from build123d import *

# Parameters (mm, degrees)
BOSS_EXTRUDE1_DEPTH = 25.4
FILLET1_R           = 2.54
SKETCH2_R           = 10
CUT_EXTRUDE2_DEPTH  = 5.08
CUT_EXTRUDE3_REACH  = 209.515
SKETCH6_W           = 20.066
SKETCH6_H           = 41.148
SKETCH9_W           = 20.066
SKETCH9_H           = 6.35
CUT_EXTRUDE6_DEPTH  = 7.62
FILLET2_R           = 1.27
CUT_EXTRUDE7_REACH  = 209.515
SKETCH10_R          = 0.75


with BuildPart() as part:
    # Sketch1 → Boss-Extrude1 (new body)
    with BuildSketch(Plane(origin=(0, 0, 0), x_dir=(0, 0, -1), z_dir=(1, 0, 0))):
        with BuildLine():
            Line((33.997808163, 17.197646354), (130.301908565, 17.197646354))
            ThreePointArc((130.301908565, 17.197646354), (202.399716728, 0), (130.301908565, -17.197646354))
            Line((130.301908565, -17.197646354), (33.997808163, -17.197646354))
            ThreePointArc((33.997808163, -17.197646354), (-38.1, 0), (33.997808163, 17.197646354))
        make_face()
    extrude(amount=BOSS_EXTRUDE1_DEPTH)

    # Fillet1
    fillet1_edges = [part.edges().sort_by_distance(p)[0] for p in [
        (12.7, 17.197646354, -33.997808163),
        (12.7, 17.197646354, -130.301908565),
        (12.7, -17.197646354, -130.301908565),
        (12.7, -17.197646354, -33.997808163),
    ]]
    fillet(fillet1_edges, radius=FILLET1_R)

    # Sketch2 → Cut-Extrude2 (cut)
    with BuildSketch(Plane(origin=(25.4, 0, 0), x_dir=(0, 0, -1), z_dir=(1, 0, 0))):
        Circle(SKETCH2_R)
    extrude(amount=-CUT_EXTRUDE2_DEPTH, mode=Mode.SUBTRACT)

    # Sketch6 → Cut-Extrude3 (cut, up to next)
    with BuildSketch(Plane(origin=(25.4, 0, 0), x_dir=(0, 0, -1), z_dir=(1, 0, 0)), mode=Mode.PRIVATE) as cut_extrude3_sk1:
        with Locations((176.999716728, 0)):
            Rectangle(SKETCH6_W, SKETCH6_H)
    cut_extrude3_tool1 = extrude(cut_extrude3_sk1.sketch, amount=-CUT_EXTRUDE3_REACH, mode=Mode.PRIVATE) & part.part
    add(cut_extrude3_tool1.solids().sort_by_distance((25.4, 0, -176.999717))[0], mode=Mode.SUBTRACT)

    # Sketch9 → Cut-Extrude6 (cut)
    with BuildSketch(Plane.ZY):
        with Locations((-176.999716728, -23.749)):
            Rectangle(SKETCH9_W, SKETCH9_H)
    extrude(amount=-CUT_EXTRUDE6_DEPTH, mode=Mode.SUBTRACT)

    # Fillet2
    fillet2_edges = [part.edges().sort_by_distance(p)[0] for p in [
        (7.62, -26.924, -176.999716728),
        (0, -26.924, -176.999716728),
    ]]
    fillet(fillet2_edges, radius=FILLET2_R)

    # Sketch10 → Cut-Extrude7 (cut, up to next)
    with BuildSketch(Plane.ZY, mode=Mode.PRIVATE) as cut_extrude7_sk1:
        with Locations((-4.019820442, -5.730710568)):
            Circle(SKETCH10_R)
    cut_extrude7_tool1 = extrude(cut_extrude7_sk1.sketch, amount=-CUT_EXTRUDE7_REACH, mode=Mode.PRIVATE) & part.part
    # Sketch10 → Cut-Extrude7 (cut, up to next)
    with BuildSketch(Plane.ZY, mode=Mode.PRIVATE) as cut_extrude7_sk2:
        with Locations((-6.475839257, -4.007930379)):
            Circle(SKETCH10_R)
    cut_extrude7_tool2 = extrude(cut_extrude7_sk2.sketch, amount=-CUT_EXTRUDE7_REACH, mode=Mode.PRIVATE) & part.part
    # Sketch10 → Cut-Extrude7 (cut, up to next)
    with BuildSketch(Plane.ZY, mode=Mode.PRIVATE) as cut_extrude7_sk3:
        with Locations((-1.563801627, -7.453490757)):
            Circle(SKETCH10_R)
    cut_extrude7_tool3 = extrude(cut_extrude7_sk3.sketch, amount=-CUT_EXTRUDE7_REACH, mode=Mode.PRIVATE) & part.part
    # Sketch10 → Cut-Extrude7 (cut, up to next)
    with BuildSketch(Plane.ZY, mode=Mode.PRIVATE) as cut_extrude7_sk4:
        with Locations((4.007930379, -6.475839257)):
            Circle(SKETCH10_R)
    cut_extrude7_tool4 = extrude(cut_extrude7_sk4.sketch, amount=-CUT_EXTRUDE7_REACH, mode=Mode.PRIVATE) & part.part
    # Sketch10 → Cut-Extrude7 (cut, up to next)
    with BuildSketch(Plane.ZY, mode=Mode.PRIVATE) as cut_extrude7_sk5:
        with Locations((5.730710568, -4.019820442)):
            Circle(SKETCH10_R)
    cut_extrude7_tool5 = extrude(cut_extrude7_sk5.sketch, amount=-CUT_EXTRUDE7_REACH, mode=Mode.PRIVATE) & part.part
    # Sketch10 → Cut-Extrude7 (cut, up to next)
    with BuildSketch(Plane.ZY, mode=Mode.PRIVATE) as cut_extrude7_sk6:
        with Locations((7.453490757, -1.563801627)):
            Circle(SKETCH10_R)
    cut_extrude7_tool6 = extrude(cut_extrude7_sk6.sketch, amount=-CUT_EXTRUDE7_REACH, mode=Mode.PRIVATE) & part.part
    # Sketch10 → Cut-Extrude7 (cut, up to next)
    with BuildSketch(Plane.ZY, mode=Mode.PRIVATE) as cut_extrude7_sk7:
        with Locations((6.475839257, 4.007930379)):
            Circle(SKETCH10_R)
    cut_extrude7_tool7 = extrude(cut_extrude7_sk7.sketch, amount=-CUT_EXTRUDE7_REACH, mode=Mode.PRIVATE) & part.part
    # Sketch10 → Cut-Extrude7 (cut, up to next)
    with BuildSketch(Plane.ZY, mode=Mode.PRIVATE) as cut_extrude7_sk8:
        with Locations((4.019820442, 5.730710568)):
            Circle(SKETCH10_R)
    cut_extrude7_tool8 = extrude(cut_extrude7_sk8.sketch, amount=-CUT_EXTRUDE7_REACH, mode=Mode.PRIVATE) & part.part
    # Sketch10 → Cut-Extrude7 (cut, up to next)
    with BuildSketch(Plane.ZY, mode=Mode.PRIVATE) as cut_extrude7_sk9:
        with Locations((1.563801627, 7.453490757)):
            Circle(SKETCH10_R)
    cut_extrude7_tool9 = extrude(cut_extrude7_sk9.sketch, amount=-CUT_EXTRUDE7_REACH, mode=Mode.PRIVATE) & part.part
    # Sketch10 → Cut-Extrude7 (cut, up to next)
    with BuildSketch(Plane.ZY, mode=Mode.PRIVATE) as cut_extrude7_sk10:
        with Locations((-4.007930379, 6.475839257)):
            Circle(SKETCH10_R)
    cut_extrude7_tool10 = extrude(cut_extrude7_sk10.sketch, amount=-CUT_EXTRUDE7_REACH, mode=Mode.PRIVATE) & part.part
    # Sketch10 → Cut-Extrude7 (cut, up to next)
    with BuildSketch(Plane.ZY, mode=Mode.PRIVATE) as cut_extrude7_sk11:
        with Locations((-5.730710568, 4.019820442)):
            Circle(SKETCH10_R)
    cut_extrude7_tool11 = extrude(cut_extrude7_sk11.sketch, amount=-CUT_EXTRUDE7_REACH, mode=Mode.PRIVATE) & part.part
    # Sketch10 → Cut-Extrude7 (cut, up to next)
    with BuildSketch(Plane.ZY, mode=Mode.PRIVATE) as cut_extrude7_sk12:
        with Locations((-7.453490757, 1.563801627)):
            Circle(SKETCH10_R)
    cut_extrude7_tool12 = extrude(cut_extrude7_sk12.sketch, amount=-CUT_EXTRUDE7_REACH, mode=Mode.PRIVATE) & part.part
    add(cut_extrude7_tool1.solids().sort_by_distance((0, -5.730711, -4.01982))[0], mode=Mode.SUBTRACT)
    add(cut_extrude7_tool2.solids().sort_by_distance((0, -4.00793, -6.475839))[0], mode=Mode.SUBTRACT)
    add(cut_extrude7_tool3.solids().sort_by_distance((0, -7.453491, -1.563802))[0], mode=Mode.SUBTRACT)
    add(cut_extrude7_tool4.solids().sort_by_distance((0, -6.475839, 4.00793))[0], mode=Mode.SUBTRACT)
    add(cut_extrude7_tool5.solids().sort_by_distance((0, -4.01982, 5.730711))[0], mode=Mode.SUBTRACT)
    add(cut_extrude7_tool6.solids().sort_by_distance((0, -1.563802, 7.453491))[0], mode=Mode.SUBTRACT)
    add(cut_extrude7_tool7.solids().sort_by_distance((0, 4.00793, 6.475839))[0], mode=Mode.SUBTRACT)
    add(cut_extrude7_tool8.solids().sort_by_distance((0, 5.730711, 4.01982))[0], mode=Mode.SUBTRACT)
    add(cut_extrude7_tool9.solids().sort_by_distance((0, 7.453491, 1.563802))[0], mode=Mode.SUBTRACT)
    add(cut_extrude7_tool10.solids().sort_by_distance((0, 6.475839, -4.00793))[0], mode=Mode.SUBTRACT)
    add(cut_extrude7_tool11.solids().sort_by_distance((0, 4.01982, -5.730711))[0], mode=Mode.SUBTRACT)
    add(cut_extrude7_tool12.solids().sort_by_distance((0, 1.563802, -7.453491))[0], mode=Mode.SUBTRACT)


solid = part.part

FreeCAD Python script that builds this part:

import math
import FreeCAD as App
import Part
import Sketcher

V = App.Vector
Q = App.Units.Quantity


def edges_at(feature, points):
    """Names of the edges that pass closest to the given points."""
    edges = feature.Shape.Edges
    near = lambda p: min(range(len(edges)), key=lambda i: edges[i].distToShape(Part.Vertex(*p))[0])
    return sorted({f"Edge{near(p) + 1}" for p in points})


def add_polygon(sketch, points):
    """Adds a closed chain of lines whose ends are joined by coincident constraints."""
    first, n = sketch.GeometryCount, len(points)
    for a, b in zip(points, points[1:] + points[:1]):
        sketch.addGeometry(Part.LineSegment(App.Vector(*a, 0), App.Vector(*b, 0)), False)
    for i in range(n):
        sketch.addConstraint(Sketcher.Constraint("Coincident", first + i, 2, first + (i + 1) % n, 1))

doc = App.newDocument("Part")
body = doc.addObject("PartDesign::Body", "Body")

# Sketch on YZ plane
sketch1 = body.newObject("Sketcher::SketchObject", "Sketch")
sketch1.AttachmentSupport = (doc.getObject("YZ_Plane"), [""])
sketch1.MapMode = "FlatFace"
sketch1.addGeometry([
    Part.LineSegment(V(17, -130, 0), V(17, -34, 0)),
    Part.ArcOfCircle(Part.Circle(V(0, 0, 0), V(0, 0, 1), 38), math.radians(-63), math.radians(243)),
    Part.LineSegment(V(-17, -34, 0), V(-17, -130, 0)),
    Part.ArcOfCircle(Part.Circle(V(0, -164, 0), V(0, 0, 1), 38), math.radians(117), math.radians(423)),
], False)
sketch1.addConstraint([
    Sketcher.Constraint("Coincident", 0, 2, 1, 1),
    Sketcher.Constraint("Coincident", 1, 2, 2, 1),
    Sketcher.Constraint("Coincident", 2, 2, 3, 1),
    Sketcher.Constraint("Coincident", 3, 2, 0, 1),
    Sketcher.Constraint("Vertical", 0),
    Sketcher.Constraint("Vertical", 2),
    Sketcher.Constraint("Coincident", 1, 3, -1, 1),
    Sketcher.Constraint("Equal", 1, 3),
    Sketcher.Constraint("Symmetric", 2, 2, 3, 2, -2),
    Sketcher.Constraint("Radius", 1, Q("1.5 in")),
    Sketcher.Constraint("DistanceY", 0, 1, 0, 2, Q("3.7915 in")),
    Sketcher.Constraint("DistanceY", 0, 2, -1, 1, 33.997808),
])
pad1 = body.newObject("PartDesign::Pad", "Pad")
pad1.Profile = sketch1
pad1.Length = Q("1 in")
doc.recompute()

fillet = body.newObject("PartDesign::Fillet", "Fillet")
fillet.Base = (pad1, edges_at(pad1, [
    (12.7, 17.198, -33.998),
    (12.7, 17.198, -130.302),
    (12.7, -17.198, -130.302),
    (12.7, -17.198, -33.998),
]))
fillet.Radius = Q("0.1 in")

# Sketch on YZ plane
sketch2 = body.newObject("Sketcher::SketchObject", "Sketch001")
sketch2.AttachmentSupport = (doc.getObject("YZ_Plane"), [""])
sketch2.MapMode = "FlatFace"
sketch2.AttachmentOffset = App.Placement(V(0, 0, 1 * 25.4), App.Rotation())
sketch2.addGeometry(Part.Circle(V(0, 0, 0), V(0, 0, 1), 10), False)
sketch2.addConstraint([
    Sketcher.Constraint("Coincident", 0, 3, -1, 1),
    Sketcher.Constraint("Diameter", 0, 20.0),
])
pocket1 = body.newObject("PartDesign::Pocket", "Pocket")
pocket1.Profile = sketch2
pocket1.Length = Q("0.2 in")

# Sketch on YZ plane
sketch3 = body.newObject("Sketcher::SketchObject", "Sketch002")
sketch3.AttachmentSupport = (doc.getObject("YZ_Plane"), [""])
sketch3.MapMode = "FlatFace"
sketch3.AttachmentOffset = App.Placement(V(0, 0, 1 * 25.4), App.Rotation())
add_polygon(sketch3, [(21, -167), (-21, -167), (-21, -187), (21, -187)])  # lines 0-3
sketch3.addConstraint([
    Sketcher.Constraint("Horizontal", 0),
    Sketcher.Constraint("Vertical", 1),
    Sketcher.Constraint("Horizontal", 2),
    Sketcher.Constraint("Vertical", 3),
    Sketcher.Constraint("DistanceX", 0, 2, 0, 1, Q("1.62 in")),
    Sketcher.Constraint("DistanceY", 1, 2, 1, 1, Q("0.79 in")),
    Sketcher.Constraint("DistanceX", 0, 2, -1, 1, Q("0.81 in")),
    Sketcher.Constraint("DistanceY", 0, 2, -1, 1, 166.966717),
])
pocket2 = body.newObject("PartDesign::Pocket", "Pocket001")
pocket2.Profile = sketch3
pocket2.Type = "UpToFirst"

# Sketch on YZ plane
sketch4 = body.newObject("Sketcher::SketchObject", "Sketch003")
sketch4.AttachmentSupport = (doc.getObject("YZ_Plane"), [""])
sketch4.MapMode = "FlatFace"
add_polygon(sketch4, [(-21, -187), (-27, -187), (-27, -167), (-21, -167)])  # lines 0-3
sketch4.addConstraint([
    Sketcher.Constraint("Horizontal", 0),
    Sketcher.Constraint("Vertical", 1),
    Sketcher.Constraint("Horizontal", 2),
    Sketcher.Constraint("Vertical", 3),
    Sketcher.Constraint("DistanceX", 0, 2, 0, 1, Q("0.25 in")),
    Sketcher.Constraint("DistanceY", 1, 1, 1, 2, Q("0.79 in")),
    Sketcher.Constraint("DistanceX", 0, 2, -1, 1, Q("1.06 in")),
    Sketcher.Constraint("DistanceY", 0, 2, -1, 1, 187.032717),
])
pocket3 = body.newObject("PartDesign::Pocket", "Pocket002")
pocket3.Profile = sketch4
pocket3.Length = Q("0.3 in")
pocket3.Reversed = True
doc.recompute()

fillet2 = body.newObject("PartDesign::Fillet", "Fillet001")
fillet2.Base = (pocket3, edges_at(pocket3, [(7.62, -26.924, -177), (0, -26.924, -177)]))
fillet2.Radius = Q("0.05 in")

# Sketch on YZ plane
sketch5 = body.newObject("Sketcher::SketchObject", "Sketch004")
sketch5.AttachmentSupport = (doc.getObject("YZ_Plane"), [""])
sketch5.MapMode = "FlatFace"
sketch5.addGeometry(Part.Circle(V(-5.7, -4, 0), V(0, 0, 1), 0.8), False)
sketch5.addConstraint([
    Sketcher.Constraint("Diameter", 0, 1.5),
    Sketcher.Constraint("DistanceX", 0, 3, -1, 1, 5.730711),
    Sketcher.Constraint("DistanceY", 0, 3, -1, 1, 4.01982),
])
pocket4 = body.newObject("PartDesign::Pocket", "Pocket003")
pocket4.Profile = sketch5
pocket4.Type = "UpToFirst"
pocket4.Reversed = True

# Sketch on YZ plane
sketch6 = body.newObject("Sketcher::SketchObject", "Sketch005")
sketch6.AttachmentSupport = (doc.getObject("YZ_Plane"), [""])
sketch6.MapMode = "FlatFace"
sketch6.addGeometry(Part.Circle(V(-4, -6.5, 0), V(0, 0, 1), 0.8), False)
sketch6.addConstraint([
    Sketcher.Constraint("Diameter", 0, 1.5),
    Sketcher.Constraint("DistanceX", 0, 3, -1, 1, 4.00793),
    Sketcher.Constraint("DistanceY", 0, 3, -1, 1, 6.475839),
])
pocket5 = body.newObject("PartDesign::Pocket", "Pocket004")
pocket5.Profile = sketch6
pocket5.Type = "UpToFirst"
pocket5.Reversed = True

# Sketch on YZ plane
sketch7 = body.newObject("Sketcher::SketchObject", "Sketch006")
sketch7.AttachmentSupport = (doc.getObject("YZ_Plane"), [""])
sketch7.MapMode = "FlatFace"
sketch7.addGeometry(Part.Circle(V(-7.5, -1.6, 0), V(0, 0, 1), 0.8), False)
sketch7.addConstraint([
    Sketcher.Constraint("Diameter", 0, 1.5),
    Sketcher.Constraint("DistanceY", 0, 3, -1, 1, 1.563802),
    Sketcher.Constraint("DistanceX", 0, 3, -1, 1, 7.453491),
])
pocket6 = body.newObject("PartDesign::Pocket", "Pocket005")
pocket6.Profile = sketch7
pocket6.Type = "UpToFirst"
pocket6.Reversed = True

# Sketch on YZ plane
sketch8 = body.newObject("Sketcher::SketchObject", "Sketch007")
sketch8.AttachmentSupport = (doc.getObject("YZ_Plane"), [""])
sketch8.MapMode = "FlatFace"
sketch8.addGeometry(Part.Circle(V(-6.5, 4, 0), V(0, 0, 1), 0.8), False)
sketch8.addConstraint([
    Sketcher.Constraint("Diameter", 0, 1.5),
    Sketcher.Constraint("DistanceX", 0, 3, -1, 1, 6.475839),
    Sketcher.Constraint("DistanceY", -1, 1, 0, 3, 4.00793),
])
pocket7 = body.newObject("PartDesign::Pocket", "Pocket006")
pocket7.Profile = sketch8
pocket7.Type = "UpToFirst"
pocket7.Reversed = True

# Sketch on YZ plane
sketch9 = body.newObject("Sketcher::SketchObject", "Sketch008")
sketch9.AttachmentSupport = (doc.getObject("YZ_Plane"), [""])
sketch9.MapMode = "FlatFace"
sketch9.addGeometry(Part.Circle(V(-4, 5.7, 0), V(0, 0, 1), 0.8), False)
sketch9.addConstraint([
    Sketcher.Constraint("Diameter", 0, 1.5),
    Sketcher.Constraint("DistanceX", 0, 3, -1, 1, 4.01982),
    Sketcher.Constraint("DistanceY", -1, 1, 0, 3, 5.730711),
])
pocket8 = body.newObject("PartDesign::Pocket", "Pocket007")
pocket8.Profile = sketch9
pocket8.Type = "UpToFirst"
pocket8.Reversed = True

# Sketch on YZ plane
sketch10 = body.newObject("Sketcher::SketchObject", "Sketch009")
sketch10.AttachmentSupport = (doc.getObject("YZ_Plane"), [""])
sketch10.MapMode = "FlatFace"
sketch10.addGeometry(Part.Circle(V(-1.6, 7.5, 0), V(0, 0, 1), 0.8), False)
sketch10.addConstraint([
    Sketcher.Constraint("Diameter", 0, 1.5),
    Sketcher.Constraint("DistanceX", 0, 3, -1, 1, 1.563802),
    Sketcher.Constraint("DistanceY", -1, 1, 0, 3, 7.453491),
])
pocket9 = body.newObject("PartDesign::Pocket", "Pocket008")
pocket9.Profile = sketch10
pocket9.Type = "UpToFirst"
pocket9.Reversed = True

# Sketch on YZ plane
sketch11 = body.newObject("Sketcher::SketchObject", "Sketch010")
sketch11.AttachmentSupport = (doc.getObject("YZ_Plane"), [""])
sketch11.MapMode = "FlatFace"
sketch11.addGeometry(Part.Circle(V(4, 6.5, 0), V(0, 0, 1), 0.8), False)
sketch11.addConstraint([
    Sketcher.Constraint("Diameter", 0, 1.5),
    Sketcher.Constraint("DistanceX", -1, 1, 0, 3, 4.00793),
    Sketcher.Constraint("DistanceY", -1, 1, 0, 3, 6.475839),
])
pocket10 = body.newObject("PartDesign::Pocket", "Pocket009")
pocket10.Profile = sketch11
pocket10.Type = "UpToFirst"
pocket10.Reversed = True

# Sketch on YZ plane
sketch12 = body.newObject("Sketcher::SketchObject", "Sketch011")
sketch12.AttachmentSupport = (doc.getObject("YZ_Plane"), [""])
sketch12.MapMode = "FlatFace"
sketch12.addGeometry(Part.Circle(V(5.7, 4, 0), V(0, 0, 1), 0.8), False)
sketch12.addConstraint([
    Sketcher.Constraint("Diameter", 0, 1.5),
    Sketcher.Constraint("DistanceX", -1, 1, 0, 3, 5.730711),
    Sketcher.Constraint("DistanceY", -1, 1, 0, 3, 4.01982),
])
pocket11 = body.newObject("PartDesign::Pocket", "Pocket010")
pocket11.Profile = sketch12
pocket11.Type = "UpToFirst"
pocket11.Reversed = True

# Sketch on YZ plane
sketch13 = body.newObject("Sketcher::SketchObject", "Sketch012")
sketch13.AttachmentSupport = (doc.getObject("YZ_Plane"), [""])
sketch13.MapMode = "FlatFace"
sketch13.addGeometry(Part.Circle(V(7.5, 1.6, 0), V(0, 0, 1), 0.8), False)
sketch13.addConstraint([
    Sketcher.Constraint("Diameter", 0, 1.5),
    Sketcher.Constraint("DistanceY", -1, 1, 0, 3, 1.563802),
    Sketcher.Constraint("DistanceX", -1, 1, 0, 3, 7.453491),
])
pocket12 = body.newObject("PartDesign::Pocket", "Pocket011")
pocket12.Profile = sketch13
pocket12.Type = "UpToFirst"
pocket12.Reversed = True

# Sketch on YZ plane
sketch14 = body.newObject("Sketcher::SketchObject", "Sketch013")
sketch14.AttachmentSupport = (doc.getObject("YZ_Plane"), [""])
sketch14.MapMode = "FlatFace"
sketch14.addGeometry(Part.Circle(V(6.5, -4, 0), V(0, 0, 1), 0.8), False)
sketch14.addConstraint([
    Sketcher.Constraint("Diameter", 0, 1.5),
    Sketcher.Constraint("DistanceX", -1, 1, 0, 3, 6.475839),
    Sketcher.Constraint("DistanceY", 0, 3, -1, 1, 4.00793),
])
pocket13 = body.newObject("PartDesign::Pocket", "Pocket012")
pocket13.Profile = sketch14
pocket13.Type = "UpToFirst"
pocket13.Reversed = True

# Sketch on YZ plane
sketch15 = body.newObject("Sketcher::SketchObject", "Sketch014")
sketch15.AttachmentSupport = (doc.getObject("YZ_Plane"), [""])
sketch15.MapMode = "FlatFace"
sketch15.addGeometry(Part.Circle(V(4, -5.7, 0), V(0, 0, 1), 0.8), False)
sketch15.addConstraint([
    Sketcher.Constraint("Diameter", 0, 1.5),
    Sketcher.Constraint("DistanceX", -1, 1, 0, 3, 4.01982),
    Sketcher.Constraint("DistanceY", 0, 3, -1, 1, 5.730711),
])
pocket14 = body.newObject("PartDesign::Pocket", "Pocket013")
pocket14.Profile = sketch15
pocket14.Type = "UpToFirst"
pocket14.Reversed = True

# Sketch on YZ plane
sketch16 = body.newObject("Sketcher::SketchObject", "Sketch015")
sketch16.AttachmentSupport = (doc.getObject("YZ_Plane"), [""])
sketch16.MapMode = "FlatFace"
sketch16.addGeometry(Part.Circle(V(1.6, -7.5, 0), V(0, 0, 1), 0.8), False)
sketch16.addConstraint([
    Sketcher.Constraint("Diameter", 0, 1.5),
    Sketcher.Constraint("DistanceX", -1, 1, 0, 3, 1.563802),
    Sketcher.Constraint("DistanceY", 0, 3, -1, 1, 7.453491),
])
pocket15 = body.newObject("PartDesign::Pocket", "Pocket014")
pocket15.Profile = sketch16
pocket15.Type = "UpToFirst"
pocket15.Reversed = True

doc.recompute()
